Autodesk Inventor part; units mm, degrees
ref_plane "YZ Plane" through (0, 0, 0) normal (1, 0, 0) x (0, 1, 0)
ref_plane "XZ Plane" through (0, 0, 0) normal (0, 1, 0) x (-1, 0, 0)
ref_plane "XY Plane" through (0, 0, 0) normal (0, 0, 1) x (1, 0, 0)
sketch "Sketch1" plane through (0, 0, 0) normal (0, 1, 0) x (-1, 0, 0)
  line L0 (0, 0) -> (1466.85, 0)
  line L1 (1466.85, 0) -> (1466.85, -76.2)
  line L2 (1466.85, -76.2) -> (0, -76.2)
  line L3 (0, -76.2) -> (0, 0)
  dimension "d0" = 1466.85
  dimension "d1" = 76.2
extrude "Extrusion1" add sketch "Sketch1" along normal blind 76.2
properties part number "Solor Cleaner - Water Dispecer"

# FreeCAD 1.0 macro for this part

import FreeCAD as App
import Part
import Sketcher

V = App.Vector
Q = App.Units.Quantity

doc = App.newDocument("Part")
params = doc.addObject("Spreadsheet::Sheet", "Params")
for row, (alias, value) in enumerate([
    ("sketch1_height", "3 in"),
    ("sketch1_width", "57.75 in"),
    ("pad1_length", "3 in"),
], start=1):
    params.set(f"A{row}", alias)
    params.set(f"B{row}", "=" + value)
    params.setAlias(f"B{row}", alias)

body = doc.addObject("PartDesign::Body", "Body")

# Sketch on XZ plane
sketch1 = body.newObject("Sketcher::SketchObject", "Sketch")
sketch1.AttachmentSupport = (doc.getObject("XZ_Plane"), [""])
sketch1.MapMode = "FlatFace"
sketch1.addGeometry([
    Part.LineSegment(V(-1467, 0, 0), V(0, 0, 0)),
    Part.LineSegment(V(0, 0, 0), V(0, -76, 0)),
    Part.LineSegment(V(0, -76, 0), V(-1467, -76, 0)),
    Part.LineSegment(V(-1467, -76, 0), V(-1467, 0, 0)),
], False)
sketch1.addConstraint([
    Sketcher.Constraint("Coincident", 0, 2, 1, 1),
    Sketcher.Constraint("Coincident", 1, 2, 2, 1),
    Sketcher.Constraint("Coincident", 2, 2, 3, 1),
    Sketcher.Constraint("Coincident", 3, 2, 0, 1),
    Sketcher.Constraint("Horizontal", 0),
    Sketcher.Constraint("Vertical", 1),
    Sketcher.Constraint("Horizontal", 2),
    Sketcher.Constraint("Vertical", 3),
    Sketcher.Constraint("Coincident", 0, 2, -1, 1),
    Sketcher.Constraint("DistanceY", 1, 2, 1, 1, Q("3 in")),
    Sketcher.Constraint("DistanceX", 0, 1, 0, 2, Q("57.75 in")),
])
sketch1.setExpression("Constraints[9]", "Params.sketch1_height")
sketch1.setExpression("Constraints[10]", "Params.sketch1_width")
pad1 = body.newObject("PartDesign::Pad", "Pad")
pad1.Profile = sketch1
pad1.setExpression("Length", "Params.pad1_length")
pad1.Reversed = True

doc.recompute()
